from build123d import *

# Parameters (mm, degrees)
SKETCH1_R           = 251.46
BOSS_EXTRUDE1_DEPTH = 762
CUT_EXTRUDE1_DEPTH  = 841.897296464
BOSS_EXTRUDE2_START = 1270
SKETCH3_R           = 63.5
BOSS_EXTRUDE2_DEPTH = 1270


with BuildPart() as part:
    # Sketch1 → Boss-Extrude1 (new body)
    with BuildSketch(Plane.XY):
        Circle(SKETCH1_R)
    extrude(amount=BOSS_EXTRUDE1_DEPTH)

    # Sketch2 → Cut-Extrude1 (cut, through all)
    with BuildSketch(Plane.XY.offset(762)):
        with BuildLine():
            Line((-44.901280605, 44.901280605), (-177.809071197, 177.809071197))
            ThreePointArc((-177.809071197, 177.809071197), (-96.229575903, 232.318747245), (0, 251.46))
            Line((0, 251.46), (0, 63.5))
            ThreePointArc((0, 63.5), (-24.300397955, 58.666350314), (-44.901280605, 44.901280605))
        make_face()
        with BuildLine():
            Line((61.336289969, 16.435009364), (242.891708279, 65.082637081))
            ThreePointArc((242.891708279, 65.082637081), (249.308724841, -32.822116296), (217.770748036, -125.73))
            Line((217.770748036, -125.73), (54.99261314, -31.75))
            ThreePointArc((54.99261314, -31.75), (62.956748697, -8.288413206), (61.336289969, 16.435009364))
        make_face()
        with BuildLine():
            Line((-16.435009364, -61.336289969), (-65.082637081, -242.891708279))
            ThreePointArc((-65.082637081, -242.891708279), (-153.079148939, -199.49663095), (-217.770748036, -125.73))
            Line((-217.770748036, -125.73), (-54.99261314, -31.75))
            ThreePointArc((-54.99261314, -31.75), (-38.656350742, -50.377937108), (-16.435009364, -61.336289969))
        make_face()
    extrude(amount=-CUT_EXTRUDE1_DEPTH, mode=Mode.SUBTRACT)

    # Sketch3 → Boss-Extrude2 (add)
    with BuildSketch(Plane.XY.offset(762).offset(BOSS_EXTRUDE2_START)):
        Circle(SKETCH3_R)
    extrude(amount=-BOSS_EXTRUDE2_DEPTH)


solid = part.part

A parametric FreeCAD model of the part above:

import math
import FreeCAD as App
import Part
import Sketcher
Q = App.Units.Quantity

doc = App.newDocument("Part")
params = doc.addObject("Spreadsheet::Sheet", "Params")
for row, (alias, value) in enumerate([
    ("sketch1_diameter", "19.8 in"),
    ("pad1_length", "30 in"),
    ("sketch2_radius", "2.5 in"),
    ("sketch2_radius2", "9.9 in"),
    ("sketch3_diameter", "5 in"),
    ("pad2_length", "50 in"),
], start=1):
    params.set(f"A{row}", alias)
    params.set(f"B{row}", "=" + value)
    params.setAlias(f"B{row}", alias)

body = doc.addObject("PartDesign::Body", "Body")

# Sketch on XY plane
sketch1 = body.newObject("Sketcher::SketchObject", "Sketch")
sketch1.AttachmentSupport = (doc.getObject("XY_Plane"), [""])
sketch1.MapMode = "FlatFace"
sketch1.addGeometry(Part.Circle(App.Vector(0, 0, 0), App.Vector(0, 0, 1), 251.46), False)
sketch1.addConstraint([
    Sketcher.Constraint("Coincident", 0, 3, -1, 1),
    Sketcher.Constraint("Diameter", 0, Q("19.8 in")),
])
sketch1.setExpression("Constraints[1]", "Params.sketch1_diameter")
pad1 = body.newObject("PartDesign::Pad", "Pad")
pad1.Profile = sketch1
pad1.setExpression("Length", "Params.pad1_length")

# Sketch on XY plane
sketch2 = body.newObject("Sketcher::SketchObject", "Sketch001")
sketch2.AttachmentSupport = (doc.getObject("XY_Plane"), [""])
sketch2.MapMode = "FlatFace"
sketch2.AttachmentOffset = App.Placement(App.Vector(0, 0, 30 * 25.4), App.Rotation())
sketch2.addGeometry([
    Part.LineSegment(App.Vector(-177.809071, 177.809071, 0), App.Vector(-44.901281, 44.901281, 0)),  # 0
    Part.ArcOfCircle(Part.Circle(App.Vector(0, 0, 0), App.Vector(0, 0, 1), 63.5), math.radians(90), math.radians(135)),  # 1
    Part.LineSegment(App.Vector(0, 63.5, 0), App.Vector(0, 251.46, 0)),  # 2
    Part.ArcOfCircle(Part.Circle(App.Vector(0, 0, 0), App.Vector(0, 0, 1), 251.46), math.radians(90), math.radians(135)),  # 3
    Part.LineSegment(App.Vector(242.891708, 65.082637, 0), App.Vector(61.33629, 16.435009, 0)),  # 4
    Part.ArcOfCircle(Part.Circle(App.Vector(0, 0, 0), App.Vector(0, 0, 1), 63.5), math.radians(-30), math.radians(15)),  # 5
    Part.LineSegment(App.Vector(54.992613, -31.75, 0), App.Vector(217.770748, -125.73, 0)),  # 6
    Part.ArcOfCircle(Part.Circle(App.Vector(0, 0, 0), App.Vector(0, 0, 1), 251.46), math.radians(-30), math.radians(15)),  # 7
    Part.LineSegment(App.Vector(-65.082637, -242.891708, 0), App.Vector(-16.435009, -61.33629, 0)),  # 8
    Part.ArcOfCircle(Part.Circle(App.Vector(0, 0, 0), App.Vector(0, 0, 1), 63.5), math.radians(-150), math.radians(-105)),  # 9
    Part.LineSegment(App.Vector(-54.992613, -31.75, 0), App.Vector(-217.770748, -125.73, 0)),  # 10
    Part.ArcOfCircle(Part.Circle(App.Vector(0, 0, 0), App.Vector(0, 0, 1), 251.46), math.radians(-150), math.radians(-105)),  # 11
], False)
sketch2.addConstraint([
    Sketcher.Constraint("Coincident", 0, 2, 1, 2),
    Sketcher.Constraint("Coincident", 1, 1, 2, 1),
    Sketcher.Constraint("Coincident", 2, 2, 3, 1),
    Sketcher.Constraint("Coincident", 3, 2, 0, 1),
    Sketcher.Constraint("Coincident", 4, 2, 5, 2),
    Sketcher.Constraint("Coincident", 5, 1, 6, 1),
    Sketcher.Constraint("Coincident", 6, 2, 7, 1),
    Sketcher.Constraint("Coincident", 7, 2, 4, 1),
    Sketcher.Constraint("Coincident", 8, 2, 9, 2),
    Sketcher.Constraint("Coincident", 9, 1, 10, 1),
    Sketcher.Constraint("Coincident", 10, 2, 11, 1),
    Sketcher.Constraint("Coincident", 11, 2, 8, 1),
    Sketcher.Constraint("Vertical", 2),
    Sketcher.Constraint("Coincident", 1, 3, -1, 1),
    Sketcher.Constraint("Coincident", 3, 3, -1, 1),
    Sketcher.Constraint("Coincident", 5, 3, -1, 1),
    Sketcher.Constraint("Coincident", 7, 3, -1, 1),
    Sketcher.Constraint("Coincident", 9, 3, -1, 1),
    Sketcher.Constraint("Coincident", 11, 3, -1, 1),
    Sketcher.Constraint("Equal", 1, 5),
    Sketcher.Constraint("Equal", 3, 7),
    Sketcher.Constraint("Equal", 5, 9),
    Sketcher.Constraint("Equal", 7, 11),
    Sketcher.Constraint("PointOnObject", 1, 1, -2),
    Sketcher.Constraint("Horizontal", 5, 1, 9, 1),
    Sketcher.Constraint("Horizontal", 6, 2, 10, 2),
    Sketcher.Constraint("Radius", 1, Q("2.5 in")),
    Sketcher.Constraint("Radius", 3, Q("9.9 in")),
    Sketcher.Constraint("Angle", 0, Q("-45 deg")),
    Sketcher.Constraint("Angle", 4, Q("-165 deg")),
    Sketcher.Constraint("Angle", 6, Q("-30 deg")),
    Sketcher.Constraint("Angle", 8, Q("75 deg")),
    Sketcher.Constraint("DistanceY", 5, 1, -1, 1, Q("1.25 in")),
    Sketcher.Constraint("DistanceX", 0, 2, -1, 1, Q("44.901281 mm")),
    Sketcher.Constraint("DistanceX", -1, 1, 4, 2, Q("61.33629 mm")),
    Sketcher.Constraint("DistanceX", 8, 2, -1, 1, Q("16.435009 mm")),
])
sketch2.setExpression("Constraints[26]", "Params.sketch2_radius")
sketch2.setExpression("Constraints[27]", "Params.sketch2_radius2")
pocket1 = body.newObject("PartDesign::Pocket", "Pocket")
pocket1.Profile = sketch2
pocket1.Type = "ThroughAll"

# Sketch on XY plane
sketch3 = body.newObject("Sketcher::SketchObject", "Sketch002")
sketch3.AttachmentSupport = (doc.getObject("XY_Plane"), [""])
sketch3.MapMode = "FlatFace"
sketch3.AttachmentOffset = App.Placement(App.Vector(0, 0, 80 * 25.4), App.Rotation())
sketch3.addGeometry(Part.Circle(App.Vector(0, 0, 0), App.Vector(0, 0, 1), 63.5), False)
sketch3.addConstraint([
    Sketcher.Constraint("Coincident", 0, 3, -1, 1),
    Sketcher.Constraint("Diameter", 0, Q("5 in")),
])
sketch3.setExpression("Constraints[1]", "Params.sketch3_diameter")
pad2 = body.newObject("PartDesign::Pad", "Pad001")
pad2.Profile = sketch3
pad2.setExpression("Length", "Params.pad2_length")
pad2.Reversed = True

doc.recompute()
